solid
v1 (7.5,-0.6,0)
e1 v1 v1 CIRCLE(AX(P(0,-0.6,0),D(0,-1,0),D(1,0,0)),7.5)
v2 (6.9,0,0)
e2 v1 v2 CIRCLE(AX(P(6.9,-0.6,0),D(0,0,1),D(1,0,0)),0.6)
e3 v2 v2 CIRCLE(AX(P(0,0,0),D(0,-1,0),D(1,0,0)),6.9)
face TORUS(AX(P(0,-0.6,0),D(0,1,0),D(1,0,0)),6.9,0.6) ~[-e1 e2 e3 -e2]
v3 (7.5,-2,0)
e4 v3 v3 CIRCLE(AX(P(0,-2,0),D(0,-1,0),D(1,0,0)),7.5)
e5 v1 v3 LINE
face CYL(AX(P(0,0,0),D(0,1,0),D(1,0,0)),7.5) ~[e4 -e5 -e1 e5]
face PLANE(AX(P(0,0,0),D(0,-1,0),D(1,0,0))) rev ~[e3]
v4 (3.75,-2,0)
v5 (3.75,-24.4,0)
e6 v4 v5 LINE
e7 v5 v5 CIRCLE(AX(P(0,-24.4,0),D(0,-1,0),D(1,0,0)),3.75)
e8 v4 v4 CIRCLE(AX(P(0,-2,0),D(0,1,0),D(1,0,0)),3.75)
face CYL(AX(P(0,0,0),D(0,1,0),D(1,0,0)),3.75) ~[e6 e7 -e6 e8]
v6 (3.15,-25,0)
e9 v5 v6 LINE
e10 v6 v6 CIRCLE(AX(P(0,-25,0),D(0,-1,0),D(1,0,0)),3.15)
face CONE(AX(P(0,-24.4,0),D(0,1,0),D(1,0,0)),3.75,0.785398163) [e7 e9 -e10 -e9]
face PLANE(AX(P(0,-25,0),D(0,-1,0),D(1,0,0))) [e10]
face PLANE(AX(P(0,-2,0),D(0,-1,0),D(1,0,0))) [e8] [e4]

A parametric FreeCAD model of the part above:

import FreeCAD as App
import Part
import Sketcher

V = App.Vector
Q = App.Units.Quantity


def edges_at(feature, points):
    """Names of the edges that pass closest to the given points."""
    edges = feature.Shape.Edges
    near = lambda p: min(range(len(edges)), key=lambda i: edges[i].distToShape(Part.Vertex(*p))[0])
    return sorted({f"Edge{near(p) + 1}" for p in points})

doc = App.newDocument("Part")
body = doc.addObject("PartDesign::Body", "Body")

# Sketch on XZ plane
sketch1 = body.newObject("Sketcher::SketchObject", "Sketch")
sketch1.AttachmentSupport = (doc.getObject("XZ_Plane"), [""])
sketch1.MapMode = "FlatFace"
sketch1.addGeometry(Part.Circle(V(0, 0, 0), V(0, 0, 1), 3.8), False)
sketch1.addConstraint(Sketcher.Constraint("Coincident", 0, 3, -1, 1))
sketch1.addConstraint(Sketcher.Constraint("Diameter", 0, Q("7.5 mm")))
pad1 = body.newObject("PartDesign::Pad", "Pad")
pad1.Profile = sketch1
pad1.Length = 25

# Sketch on XZ plane
sketch2 = body.newObject("Sketcher::SketchObject", "Sketch001")
sketch2.AttachmentSupport = (doc.getObject("XZ_Plane"), [""])
sketch2.MapMode = "FlatFace"
sketch2.addGeometry(Part.Circle(V(0, 0, 0), V(0, 0, 1), 8), False)
sketch2.addConstraint(Sketcher.Constraint("Coincident", 0, 3, -1, 1))
sketch2.addConstraint(Sketcher.Constraint("Diameter", 0, Q("15 mm")))
pad2 = body.newObject("PartDesign::Pad", "Pad001")
pad2.Profile = sketch2
pad2.Length = 2
doc.recompute()

fillet = body.newObject("PartDesign::Fillet", "Fillet")
fillet.Base = (pad2, edges_at(pad2, [(-7.5, 0, 0)]))
fillet.Radius = 0.6
doc.recompute()

chamfer = body.newObject("PartDesign::Chamfer", "Chamfer")
chamfer.Base = (fillet, edges_at(fillet, [(-3.75, -25, 0)]))
chamfer.Size = 0.6

doc.recompute()
